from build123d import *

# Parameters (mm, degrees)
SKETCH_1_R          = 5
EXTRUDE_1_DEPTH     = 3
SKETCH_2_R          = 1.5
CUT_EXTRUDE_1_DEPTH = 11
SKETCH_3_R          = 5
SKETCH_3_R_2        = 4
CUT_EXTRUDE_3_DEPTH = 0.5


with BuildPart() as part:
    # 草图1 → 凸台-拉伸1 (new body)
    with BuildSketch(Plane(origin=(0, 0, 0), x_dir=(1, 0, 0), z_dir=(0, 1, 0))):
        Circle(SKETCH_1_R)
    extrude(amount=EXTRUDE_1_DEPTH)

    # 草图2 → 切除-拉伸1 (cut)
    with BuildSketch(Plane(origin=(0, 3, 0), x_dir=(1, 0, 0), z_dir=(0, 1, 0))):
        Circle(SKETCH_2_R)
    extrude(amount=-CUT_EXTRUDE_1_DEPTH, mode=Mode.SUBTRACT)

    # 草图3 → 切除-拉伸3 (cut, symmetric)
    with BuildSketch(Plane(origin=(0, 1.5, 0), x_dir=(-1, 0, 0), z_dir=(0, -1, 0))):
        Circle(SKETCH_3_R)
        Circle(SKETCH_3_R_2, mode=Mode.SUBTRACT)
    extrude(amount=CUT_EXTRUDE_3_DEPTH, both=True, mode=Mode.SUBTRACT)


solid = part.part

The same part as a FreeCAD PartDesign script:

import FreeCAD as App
import Part
import Sketcher
from FreeCAD import Vector
Q = App.Units.Quantity

doc = App.newDocument("Part")
params = doc.addObject("Spreadsheet::Sheet", "Params")
for row, (alias, value) in enumerate([
    ("sketch1_diameter", "10 mm"),
    ("pad1_length", "3 mm"),
    ("sketch2_diameter", "3 mm"),
    ("pocket1_length", "11 mm"),
    ("sketch3_diameter", "10 mm"),
    ("sketch3_diameter2", "8 mm"),
    ("pocket2_length", "1 mm"),
], start=1):
    params.set(f"A{row}", alias)
    params.set(f"B{row}", "=" + value)
    params.setAlias(f"B{row}", alias)

body = doc.addObject("PartDesign::Body", "Body")

# Sketch on XZ plane
sketch1 = body.newObject("Sketcher::SketchObject", "Sketch")
sketch1.AttachmentSupport = (doc.getObject("XZ_Plane"), [""])
sketch1.MapMode = "FlatFace"
sketch1.addGeometry(Part.Circle(Vector(0, 0, 0), Vector(0, 0, 1), 5), False)
sketch1.addConstraint([
    Sketcher.Constraint("Coincident", 0, 3, -1, 1),
    Sketcher.Constraint("Diameter", 0, Q("10 mm")),
])
sketch1.setExpression("Constraints[1]", "Params.sketch1_diameter")
pad1 = body.newObject("PartDesign::Pad", "Pad")
pad1.Profile = sketch1
pad1.setExpression("Length", "Params.pad1_length")
pad1.Reversed = True

# Sketch on XZ plane
sketch2 = body.newObject("Sketcher::SketchObject", "Sketch001")
sketch2.AttachmentSupport = (doc.getObject("XZ_Plane"), [""])
sketch2.MapMode = "FlatFace"
sketch2.AttachmentOffset = App.Placement(Vector(0, 0, -3), App.Rotation())
sketch2.addGeometry(Part.Circle(Vector(0, 0, 0), Vector(0, 0, 1), 1.5), False)
sketch2.addConstraint([
    Sketcher.Constraint("Coincident", 0, 3, -1, 1),
    Sketcher.Constraint("Diameter", 0, Q("3 mm")),
])
sketch2.setExpression("Constraints[1]", "Params.sketch2_diameter")
pocket1 = body.newObject("PartDesign::Pocket", "Pocket")
pocket1.Profile = sketch2
pocket1.setExpression("Length", "Params.pocket1_length")
pocket1.Reversed = True

# Sketch on XZ plane
sketch3 = body.newObject("Sketcher::SketchObject", "Sketch002")
sketch3.AttachmentSupport = (doc.getObject("XZ_Plane"), [""])
sketch3.MapMode = "FlatFace"
sketch3.AttachmentOffset = App.Placement(Vector(0, 0, -1.5), App.Rotation())
sketch3.addGeometry([
    Part.Circle(Vector(0, 0, 0), Vector(0, 0, 1), 5),
    Part.Circle(Vector(0, 0, 0), Vector(0, 0, 1), 4),
], False)
sketch3.addConstraint([
    Sketcher.Constraint("Coincident", 0, 3, -1, 1),
    Sketcher.Constraint("Coincident", 1, 3, -1, 1),
    Sketcher.Constraint("Diameter", 0, Q("10 mm")),
    Sketcher.Constraint("Diameter", 1, Q("8 mm")),
])
sketch3.setExpression("Constraints[2]", "Params.sketch3_diameter")
sketch3.setExpression("Constraints[3]", "Params.sketch3_diameter2")
pocket2 = body.newObject("PartDesign::Pocket", "Pocket001")
pocket2.Profile = sketch3
pocket2.setExpression("Length", "Params.pocket2_length")
pocket2.Midplane = True

doc.recompute()
